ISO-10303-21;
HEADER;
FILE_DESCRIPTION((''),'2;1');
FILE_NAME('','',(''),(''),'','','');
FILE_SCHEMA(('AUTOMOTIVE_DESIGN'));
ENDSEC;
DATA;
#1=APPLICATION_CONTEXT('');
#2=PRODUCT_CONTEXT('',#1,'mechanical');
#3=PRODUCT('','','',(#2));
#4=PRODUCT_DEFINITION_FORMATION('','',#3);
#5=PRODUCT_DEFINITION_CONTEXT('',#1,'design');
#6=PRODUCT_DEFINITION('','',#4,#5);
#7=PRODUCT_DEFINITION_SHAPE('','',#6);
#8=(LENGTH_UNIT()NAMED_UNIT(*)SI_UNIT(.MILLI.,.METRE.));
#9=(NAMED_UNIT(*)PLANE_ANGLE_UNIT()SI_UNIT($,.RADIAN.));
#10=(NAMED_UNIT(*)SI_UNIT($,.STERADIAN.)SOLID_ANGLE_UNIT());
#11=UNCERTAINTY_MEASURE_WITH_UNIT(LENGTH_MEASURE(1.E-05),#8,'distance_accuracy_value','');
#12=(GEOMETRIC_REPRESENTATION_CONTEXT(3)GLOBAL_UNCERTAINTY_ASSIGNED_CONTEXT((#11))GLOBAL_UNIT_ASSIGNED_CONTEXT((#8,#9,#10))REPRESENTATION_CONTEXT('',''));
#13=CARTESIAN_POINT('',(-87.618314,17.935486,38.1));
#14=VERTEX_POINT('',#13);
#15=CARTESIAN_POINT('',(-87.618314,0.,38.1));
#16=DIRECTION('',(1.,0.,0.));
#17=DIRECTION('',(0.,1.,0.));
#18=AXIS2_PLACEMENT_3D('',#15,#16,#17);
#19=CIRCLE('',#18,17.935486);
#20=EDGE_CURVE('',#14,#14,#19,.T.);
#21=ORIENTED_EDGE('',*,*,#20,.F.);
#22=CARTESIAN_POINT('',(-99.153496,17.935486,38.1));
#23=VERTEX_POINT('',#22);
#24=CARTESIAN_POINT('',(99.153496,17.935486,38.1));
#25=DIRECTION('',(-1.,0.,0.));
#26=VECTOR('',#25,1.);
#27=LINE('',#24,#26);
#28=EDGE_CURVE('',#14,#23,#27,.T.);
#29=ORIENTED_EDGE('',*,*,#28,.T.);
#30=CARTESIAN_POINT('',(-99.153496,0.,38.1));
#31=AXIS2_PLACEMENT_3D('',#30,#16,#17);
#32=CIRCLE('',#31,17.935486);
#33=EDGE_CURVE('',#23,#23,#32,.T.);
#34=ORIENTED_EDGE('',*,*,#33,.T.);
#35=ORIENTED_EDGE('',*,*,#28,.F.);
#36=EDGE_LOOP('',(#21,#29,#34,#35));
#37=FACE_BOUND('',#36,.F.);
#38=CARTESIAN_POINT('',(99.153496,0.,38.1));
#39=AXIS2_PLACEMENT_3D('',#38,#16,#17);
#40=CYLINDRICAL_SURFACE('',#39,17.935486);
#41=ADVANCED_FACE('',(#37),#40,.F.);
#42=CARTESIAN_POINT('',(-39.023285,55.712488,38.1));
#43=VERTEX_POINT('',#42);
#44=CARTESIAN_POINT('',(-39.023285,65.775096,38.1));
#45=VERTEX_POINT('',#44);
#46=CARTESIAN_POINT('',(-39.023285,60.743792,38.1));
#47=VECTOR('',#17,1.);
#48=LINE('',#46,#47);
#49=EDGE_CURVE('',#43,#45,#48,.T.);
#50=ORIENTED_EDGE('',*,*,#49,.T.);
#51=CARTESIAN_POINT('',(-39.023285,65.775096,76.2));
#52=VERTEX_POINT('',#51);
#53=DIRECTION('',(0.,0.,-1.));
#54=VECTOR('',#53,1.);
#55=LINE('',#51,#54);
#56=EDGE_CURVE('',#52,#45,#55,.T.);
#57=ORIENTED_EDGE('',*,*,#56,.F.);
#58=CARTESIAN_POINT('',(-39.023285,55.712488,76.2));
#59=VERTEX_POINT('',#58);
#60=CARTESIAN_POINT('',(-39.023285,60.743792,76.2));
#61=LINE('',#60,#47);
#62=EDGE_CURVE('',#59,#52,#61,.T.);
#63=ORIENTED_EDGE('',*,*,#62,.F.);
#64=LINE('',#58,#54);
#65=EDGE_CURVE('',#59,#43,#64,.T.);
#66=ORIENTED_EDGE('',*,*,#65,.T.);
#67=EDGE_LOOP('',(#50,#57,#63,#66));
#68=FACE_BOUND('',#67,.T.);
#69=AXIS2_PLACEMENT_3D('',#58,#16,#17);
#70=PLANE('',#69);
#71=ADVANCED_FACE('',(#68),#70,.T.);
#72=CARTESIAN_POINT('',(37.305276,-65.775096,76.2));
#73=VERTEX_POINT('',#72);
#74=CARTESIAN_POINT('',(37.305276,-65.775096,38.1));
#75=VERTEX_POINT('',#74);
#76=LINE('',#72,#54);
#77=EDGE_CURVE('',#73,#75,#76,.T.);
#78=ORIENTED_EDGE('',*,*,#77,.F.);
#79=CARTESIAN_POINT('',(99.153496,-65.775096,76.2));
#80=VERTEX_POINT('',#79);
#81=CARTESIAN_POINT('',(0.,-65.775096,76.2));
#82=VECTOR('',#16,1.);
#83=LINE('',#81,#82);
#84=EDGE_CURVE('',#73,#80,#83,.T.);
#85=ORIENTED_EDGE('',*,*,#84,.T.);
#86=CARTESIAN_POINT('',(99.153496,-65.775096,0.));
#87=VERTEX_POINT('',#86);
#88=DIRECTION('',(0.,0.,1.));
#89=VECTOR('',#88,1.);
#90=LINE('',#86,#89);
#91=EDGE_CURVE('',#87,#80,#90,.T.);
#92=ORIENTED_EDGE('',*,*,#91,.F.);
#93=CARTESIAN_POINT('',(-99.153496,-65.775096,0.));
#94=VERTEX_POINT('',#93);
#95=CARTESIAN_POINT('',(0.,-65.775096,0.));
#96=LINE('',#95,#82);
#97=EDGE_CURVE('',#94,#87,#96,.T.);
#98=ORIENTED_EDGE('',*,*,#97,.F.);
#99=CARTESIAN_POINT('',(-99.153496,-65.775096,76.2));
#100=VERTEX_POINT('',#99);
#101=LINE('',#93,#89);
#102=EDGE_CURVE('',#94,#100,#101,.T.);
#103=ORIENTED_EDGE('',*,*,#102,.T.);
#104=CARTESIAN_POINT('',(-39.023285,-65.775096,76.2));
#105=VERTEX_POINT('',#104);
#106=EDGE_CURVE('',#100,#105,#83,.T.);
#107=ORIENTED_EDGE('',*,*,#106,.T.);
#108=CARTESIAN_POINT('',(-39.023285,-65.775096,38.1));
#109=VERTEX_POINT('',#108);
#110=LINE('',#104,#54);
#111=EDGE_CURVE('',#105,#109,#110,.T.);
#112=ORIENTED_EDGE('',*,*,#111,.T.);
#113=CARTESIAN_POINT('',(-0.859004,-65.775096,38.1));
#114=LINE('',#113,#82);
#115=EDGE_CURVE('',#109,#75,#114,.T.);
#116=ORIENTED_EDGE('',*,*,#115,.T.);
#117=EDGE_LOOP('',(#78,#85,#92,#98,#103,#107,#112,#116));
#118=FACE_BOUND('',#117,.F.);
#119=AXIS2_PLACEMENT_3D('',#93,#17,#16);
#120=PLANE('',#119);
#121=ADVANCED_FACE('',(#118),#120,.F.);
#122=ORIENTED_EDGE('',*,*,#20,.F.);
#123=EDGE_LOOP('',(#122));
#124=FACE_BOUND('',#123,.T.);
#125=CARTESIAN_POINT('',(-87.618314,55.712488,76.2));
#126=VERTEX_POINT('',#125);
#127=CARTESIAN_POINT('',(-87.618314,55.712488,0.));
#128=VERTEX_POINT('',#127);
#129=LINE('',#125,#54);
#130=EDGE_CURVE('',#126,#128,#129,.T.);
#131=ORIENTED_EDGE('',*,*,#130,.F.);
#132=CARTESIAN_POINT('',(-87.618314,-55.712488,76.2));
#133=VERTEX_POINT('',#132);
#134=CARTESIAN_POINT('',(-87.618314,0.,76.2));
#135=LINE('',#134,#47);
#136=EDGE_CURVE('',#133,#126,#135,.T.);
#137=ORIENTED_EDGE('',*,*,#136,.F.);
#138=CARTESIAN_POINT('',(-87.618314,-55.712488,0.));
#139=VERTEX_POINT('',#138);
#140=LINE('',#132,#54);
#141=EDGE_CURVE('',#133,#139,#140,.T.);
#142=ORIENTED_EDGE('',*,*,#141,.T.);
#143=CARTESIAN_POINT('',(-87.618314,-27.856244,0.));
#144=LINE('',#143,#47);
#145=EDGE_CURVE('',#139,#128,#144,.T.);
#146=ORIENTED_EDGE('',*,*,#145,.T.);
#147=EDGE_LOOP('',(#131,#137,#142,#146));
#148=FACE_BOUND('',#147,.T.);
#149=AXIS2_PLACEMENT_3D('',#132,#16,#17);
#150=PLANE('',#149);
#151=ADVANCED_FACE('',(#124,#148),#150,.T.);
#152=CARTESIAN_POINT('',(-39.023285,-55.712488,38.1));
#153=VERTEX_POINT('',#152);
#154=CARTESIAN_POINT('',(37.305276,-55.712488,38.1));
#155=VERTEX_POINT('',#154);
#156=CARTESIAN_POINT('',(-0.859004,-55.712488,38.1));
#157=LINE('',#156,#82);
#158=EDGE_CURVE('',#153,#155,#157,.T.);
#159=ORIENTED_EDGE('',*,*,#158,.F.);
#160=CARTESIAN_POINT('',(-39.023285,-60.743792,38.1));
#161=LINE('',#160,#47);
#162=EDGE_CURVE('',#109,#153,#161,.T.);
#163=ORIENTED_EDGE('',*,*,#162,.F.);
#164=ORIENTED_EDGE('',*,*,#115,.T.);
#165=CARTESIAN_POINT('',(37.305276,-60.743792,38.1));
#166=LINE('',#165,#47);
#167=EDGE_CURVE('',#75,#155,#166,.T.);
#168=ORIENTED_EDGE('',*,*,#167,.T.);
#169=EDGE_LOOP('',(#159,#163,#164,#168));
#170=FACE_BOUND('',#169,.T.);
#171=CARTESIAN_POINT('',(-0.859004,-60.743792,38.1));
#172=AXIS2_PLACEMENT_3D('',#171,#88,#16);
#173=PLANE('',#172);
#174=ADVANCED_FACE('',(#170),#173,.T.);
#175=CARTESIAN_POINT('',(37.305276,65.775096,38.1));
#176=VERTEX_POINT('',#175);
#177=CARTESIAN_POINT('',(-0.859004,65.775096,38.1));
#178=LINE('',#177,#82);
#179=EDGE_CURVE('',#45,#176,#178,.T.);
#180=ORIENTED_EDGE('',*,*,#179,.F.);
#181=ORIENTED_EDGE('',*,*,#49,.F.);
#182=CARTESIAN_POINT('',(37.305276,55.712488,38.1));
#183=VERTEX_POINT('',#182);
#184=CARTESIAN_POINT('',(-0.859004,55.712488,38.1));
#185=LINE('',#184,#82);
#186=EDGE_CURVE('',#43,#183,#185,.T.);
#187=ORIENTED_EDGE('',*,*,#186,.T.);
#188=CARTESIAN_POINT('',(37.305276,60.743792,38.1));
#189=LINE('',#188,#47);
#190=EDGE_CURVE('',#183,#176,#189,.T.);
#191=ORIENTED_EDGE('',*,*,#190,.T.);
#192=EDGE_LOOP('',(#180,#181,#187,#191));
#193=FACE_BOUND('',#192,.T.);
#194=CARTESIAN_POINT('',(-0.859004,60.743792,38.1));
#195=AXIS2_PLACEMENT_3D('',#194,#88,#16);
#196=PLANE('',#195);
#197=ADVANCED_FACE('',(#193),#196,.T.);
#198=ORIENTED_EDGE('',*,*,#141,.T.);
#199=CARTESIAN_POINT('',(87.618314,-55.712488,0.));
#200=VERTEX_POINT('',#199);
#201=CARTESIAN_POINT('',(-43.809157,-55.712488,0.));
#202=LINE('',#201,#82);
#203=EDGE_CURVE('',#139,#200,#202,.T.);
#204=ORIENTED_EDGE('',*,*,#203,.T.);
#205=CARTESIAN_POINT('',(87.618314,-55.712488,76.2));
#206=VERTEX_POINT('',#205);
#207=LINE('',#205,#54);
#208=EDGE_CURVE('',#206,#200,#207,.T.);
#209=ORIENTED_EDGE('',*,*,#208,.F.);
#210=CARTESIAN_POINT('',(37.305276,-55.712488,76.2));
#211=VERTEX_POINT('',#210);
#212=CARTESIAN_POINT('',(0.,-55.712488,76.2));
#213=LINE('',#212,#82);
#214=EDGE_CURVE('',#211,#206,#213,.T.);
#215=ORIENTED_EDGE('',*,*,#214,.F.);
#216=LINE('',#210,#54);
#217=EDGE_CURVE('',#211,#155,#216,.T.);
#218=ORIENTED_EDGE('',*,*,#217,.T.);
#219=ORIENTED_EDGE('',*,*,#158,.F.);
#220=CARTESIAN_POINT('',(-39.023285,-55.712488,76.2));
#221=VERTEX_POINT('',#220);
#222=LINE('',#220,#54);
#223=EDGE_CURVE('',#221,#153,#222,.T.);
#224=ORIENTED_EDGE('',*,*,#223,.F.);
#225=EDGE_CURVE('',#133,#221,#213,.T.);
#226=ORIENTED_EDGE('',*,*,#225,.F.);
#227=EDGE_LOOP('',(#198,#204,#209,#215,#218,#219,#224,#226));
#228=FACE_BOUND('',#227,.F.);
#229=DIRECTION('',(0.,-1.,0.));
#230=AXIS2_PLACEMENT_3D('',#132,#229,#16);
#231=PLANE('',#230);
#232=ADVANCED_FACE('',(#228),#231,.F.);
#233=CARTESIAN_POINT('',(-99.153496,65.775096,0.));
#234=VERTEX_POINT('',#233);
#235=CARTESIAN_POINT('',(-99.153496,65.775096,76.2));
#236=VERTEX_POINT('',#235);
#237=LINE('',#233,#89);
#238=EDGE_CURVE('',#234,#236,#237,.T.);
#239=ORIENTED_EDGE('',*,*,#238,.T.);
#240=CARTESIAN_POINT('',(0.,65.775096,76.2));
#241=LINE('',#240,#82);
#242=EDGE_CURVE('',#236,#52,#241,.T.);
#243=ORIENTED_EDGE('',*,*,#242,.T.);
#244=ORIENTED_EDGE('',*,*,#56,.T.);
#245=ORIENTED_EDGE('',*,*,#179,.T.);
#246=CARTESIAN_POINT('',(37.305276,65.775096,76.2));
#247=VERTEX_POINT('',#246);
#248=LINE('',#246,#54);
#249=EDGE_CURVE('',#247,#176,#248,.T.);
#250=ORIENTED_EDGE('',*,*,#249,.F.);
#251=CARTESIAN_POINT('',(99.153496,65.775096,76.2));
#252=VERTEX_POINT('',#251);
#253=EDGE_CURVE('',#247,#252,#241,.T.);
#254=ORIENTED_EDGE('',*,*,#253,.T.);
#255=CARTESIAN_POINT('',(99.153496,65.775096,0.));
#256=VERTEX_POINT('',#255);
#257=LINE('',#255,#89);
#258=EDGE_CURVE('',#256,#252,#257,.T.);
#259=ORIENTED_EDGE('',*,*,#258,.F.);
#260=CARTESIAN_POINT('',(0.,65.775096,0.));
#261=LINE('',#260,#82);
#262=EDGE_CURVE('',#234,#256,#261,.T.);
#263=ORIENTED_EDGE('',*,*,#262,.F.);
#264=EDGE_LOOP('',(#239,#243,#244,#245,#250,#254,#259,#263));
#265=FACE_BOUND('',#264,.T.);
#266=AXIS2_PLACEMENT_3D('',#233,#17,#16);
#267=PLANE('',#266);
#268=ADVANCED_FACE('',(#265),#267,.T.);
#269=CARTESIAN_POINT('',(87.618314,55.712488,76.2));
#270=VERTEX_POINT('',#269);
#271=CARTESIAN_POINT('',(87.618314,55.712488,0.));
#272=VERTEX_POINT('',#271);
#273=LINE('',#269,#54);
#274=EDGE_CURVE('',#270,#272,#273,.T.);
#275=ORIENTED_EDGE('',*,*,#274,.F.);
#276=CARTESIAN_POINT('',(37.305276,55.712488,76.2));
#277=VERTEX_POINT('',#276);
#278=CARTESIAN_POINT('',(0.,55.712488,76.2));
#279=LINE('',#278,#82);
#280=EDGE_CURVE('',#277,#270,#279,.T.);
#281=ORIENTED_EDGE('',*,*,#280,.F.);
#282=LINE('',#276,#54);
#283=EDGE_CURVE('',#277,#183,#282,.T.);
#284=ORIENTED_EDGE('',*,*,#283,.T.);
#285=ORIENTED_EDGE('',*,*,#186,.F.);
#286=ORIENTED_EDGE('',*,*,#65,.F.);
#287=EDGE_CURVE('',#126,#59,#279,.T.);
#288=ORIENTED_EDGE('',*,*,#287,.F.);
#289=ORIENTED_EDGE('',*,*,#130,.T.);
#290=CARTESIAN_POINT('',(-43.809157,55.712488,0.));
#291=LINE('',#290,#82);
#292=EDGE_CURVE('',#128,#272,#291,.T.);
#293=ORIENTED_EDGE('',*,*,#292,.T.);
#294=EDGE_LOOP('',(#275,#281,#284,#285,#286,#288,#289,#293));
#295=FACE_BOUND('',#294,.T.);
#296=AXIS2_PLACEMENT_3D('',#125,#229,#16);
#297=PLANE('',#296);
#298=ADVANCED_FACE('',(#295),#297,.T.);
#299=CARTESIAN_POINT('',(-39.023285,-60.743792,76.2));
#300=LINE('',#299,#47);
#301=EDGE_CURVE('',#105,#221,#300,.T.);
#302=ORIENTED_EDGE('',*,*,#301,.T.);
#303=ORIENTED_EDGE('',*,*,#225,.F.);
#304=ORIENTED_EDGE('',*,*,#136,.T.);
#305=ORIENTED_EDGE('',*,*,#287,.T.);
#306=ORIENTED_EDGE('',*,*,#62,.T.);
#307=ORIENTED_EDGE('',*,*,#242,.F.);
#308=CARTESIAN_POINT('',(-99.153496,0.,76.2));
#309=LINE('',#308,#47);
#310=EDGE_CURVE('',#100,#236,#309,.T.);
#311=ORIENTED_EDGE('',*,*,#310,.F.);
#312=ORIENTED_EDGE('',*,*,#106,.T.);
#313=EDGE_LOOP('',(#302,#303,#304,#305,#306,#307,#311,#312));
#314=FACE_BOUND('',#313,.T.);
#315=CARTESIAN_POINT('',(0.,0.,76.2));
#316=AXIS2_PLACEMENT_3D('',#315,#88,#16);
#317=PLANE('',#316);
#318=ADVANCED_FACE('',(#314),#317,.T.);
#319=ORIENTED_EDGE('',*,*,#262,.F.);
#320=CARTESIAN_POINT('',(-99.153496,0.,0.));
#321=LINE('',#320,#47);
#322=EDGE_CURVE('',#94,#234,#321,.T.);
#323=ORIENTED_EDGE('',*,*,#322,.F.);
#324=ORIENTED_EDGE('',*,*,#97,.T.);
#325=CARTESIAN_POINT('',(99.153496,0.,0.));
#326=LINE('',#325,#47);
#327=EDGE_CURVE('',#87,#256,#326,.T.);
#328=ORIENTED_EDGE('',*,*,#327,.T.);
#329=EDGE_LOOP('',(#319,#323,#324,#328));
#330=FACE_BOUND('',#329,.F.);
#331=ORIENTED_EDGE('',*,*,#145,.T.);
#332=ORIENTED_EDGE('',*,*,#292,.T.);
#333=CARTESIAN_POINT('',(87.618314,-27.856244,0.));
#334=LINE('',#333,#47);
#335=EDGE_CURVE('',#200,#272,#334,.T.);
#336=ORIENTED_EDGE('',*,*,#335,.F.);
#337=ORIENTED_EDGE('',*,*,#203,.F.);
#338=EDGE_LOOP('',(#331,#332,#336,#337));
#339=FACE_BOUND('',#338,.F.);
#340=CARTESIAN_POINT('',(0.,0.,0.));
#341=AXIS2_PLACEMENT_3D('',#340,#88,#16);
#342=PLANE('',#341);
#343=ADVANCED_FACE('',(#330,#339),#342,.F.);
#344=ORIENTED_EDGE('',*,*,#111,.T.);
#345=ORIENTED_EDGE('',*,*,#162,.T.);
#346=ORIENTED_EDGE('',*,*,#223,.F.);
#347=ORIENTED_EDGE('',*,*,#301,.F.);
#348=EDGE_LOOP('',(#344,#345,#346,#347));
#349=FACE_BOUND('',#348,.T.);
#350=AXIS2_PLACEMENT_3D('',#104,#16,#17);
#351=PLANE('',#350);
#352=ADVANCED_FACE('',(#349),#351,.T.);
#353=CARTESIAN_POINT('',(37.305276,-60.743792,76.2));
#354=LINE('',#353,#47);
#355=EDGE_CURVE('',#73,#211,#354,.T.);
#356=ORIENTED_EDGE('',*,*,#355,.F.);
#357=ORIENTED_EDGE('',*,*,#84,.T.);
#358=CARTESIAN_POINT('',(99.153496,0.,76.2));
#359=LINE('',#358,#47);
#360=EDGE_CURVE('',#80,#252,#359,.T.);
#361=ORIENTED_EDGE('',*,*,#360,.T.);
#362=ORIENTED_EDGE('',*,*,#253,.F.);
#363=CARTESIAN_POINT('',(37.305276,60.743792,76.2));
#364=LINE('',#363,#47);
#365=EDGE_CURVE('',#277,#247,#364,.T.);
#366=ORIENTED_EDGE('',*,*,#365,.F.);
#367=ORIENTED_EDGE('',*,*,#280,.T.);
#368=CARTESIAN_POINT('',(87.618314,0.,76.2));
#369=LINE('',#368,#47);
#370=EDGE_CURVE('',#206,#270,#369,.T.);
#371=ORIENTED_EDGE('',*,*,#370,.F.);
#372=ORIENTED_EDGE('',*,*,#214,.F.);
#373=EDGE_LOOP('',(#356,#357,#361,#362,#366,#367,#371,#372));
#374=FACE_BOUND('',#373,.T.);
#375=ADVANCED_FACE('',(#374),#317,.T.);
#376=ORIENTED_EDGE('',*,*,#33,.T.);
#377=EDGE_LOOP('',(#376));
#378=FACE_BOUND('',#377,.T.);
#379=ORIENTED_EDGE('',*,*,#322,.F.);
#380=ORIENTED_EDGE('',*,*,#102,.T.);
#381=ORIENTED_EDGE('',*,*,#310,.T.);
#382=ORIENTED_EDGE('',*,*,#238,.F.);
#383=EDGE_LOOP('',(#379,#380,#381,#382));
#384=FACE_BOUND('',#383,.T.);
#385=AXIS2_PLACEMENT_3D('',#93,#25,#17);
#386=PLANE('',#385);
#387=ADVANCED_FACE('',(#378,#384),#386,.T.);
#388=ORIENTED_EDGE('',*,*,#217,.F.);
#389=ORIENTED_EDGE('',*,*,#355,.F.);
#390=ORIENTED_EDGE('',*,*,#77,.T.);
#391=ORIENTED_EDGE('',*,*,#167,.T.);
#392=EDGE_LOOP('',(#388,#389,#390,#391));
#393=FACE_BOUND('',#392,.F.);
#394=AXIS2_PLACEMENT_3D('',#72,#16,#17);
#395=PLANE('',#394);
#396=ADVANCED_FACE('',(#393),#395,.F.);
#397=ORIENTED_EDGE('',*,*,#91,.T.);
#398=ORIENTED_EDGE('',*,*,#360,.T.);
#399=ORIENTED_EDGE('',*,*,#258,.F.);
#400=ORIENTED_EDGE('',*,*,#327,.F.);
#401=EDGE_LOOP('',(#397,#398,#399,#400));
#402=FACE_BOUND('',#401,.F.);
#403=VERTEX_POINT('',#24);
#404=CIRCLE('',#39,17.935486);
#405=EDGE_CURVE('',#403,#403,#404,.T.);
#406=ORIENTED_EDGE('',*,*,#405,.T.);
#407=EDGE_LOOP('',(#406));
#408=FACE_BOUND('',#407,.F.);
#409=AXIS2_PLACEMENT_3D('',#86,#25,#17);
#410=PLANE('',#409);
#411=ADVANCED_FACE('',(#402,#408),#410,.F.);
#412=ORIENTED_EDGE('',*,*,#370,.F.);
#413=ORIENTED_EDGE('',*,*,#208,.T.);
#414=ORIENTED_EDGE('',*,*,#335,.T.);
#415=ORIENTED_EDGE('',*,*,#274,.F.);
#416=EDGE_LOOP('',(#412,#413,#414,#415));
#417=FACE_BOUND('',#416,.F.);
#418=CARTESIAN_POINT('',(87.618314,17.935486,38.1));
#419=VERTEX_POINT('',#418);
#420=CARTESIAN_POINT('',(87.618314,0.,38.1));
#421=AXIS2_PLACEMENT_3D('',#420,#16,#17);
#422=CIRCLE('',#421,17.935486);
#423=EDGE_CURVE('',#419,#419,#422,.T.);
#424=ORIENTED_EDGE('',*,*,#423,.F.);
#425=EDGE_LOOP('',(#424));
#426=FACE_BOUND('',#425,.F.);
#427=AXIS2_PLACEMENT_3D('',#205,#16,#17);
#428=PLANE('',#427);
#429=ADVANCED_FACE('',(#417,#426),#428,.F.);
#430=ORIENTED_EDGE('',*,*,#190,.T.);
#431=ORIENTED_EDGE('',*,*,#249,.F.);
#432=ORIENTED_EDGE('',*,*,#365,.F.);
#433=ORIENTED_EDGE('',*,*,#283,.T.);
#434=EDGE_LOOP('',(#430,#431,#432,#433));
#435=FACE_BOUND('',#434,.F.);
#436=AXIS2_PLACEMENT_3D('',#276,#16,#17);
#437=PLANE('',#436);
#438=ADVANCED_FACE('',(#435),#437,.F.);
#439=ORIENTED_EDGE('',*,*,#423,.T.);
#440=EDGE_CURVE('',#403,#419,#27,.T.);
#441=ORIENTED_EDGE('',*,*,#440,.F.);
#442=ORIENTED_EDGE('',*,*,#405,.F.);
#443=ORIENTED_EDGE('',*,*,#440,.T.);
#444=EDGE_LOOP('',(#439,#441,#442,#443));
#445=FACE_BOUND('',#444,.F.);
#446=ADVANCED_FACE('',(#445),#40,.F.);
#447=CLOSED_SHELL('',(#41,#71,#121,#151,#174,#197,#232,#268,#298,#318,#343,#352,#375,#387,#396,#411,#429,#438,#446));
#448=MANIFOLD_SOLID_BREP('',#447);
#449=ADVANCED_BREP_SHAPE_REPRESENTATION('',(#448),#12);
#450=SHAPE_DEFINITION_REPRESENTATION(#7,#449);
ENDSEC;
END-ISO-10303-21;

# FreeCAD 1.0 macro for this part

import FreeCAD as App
import Part
import Sketcher
from FreeCAD import Vector
Q = App.Units.Quantity


def add_polygon(sketch, points):
    """Adds a closed chain of lines whose ends are joined by coincident constraints."""
    first, n = sketch.GeometryCount, len(points)
    for a, b in zip(points, points[1:] + points[:1]):
        sketch.addGeometry(Part.LineSegment(App.Vector(*a, 0), App.Vector(*b, 0)), False)
    for i in range(n):
        sketch.addConstraint(Sketcher.Constraint("Coincident", first + i, 2, first + (i + 1) % n, 1))

doc = App.newDocument("Part")
body = doc.addObject("PartDesign::Body", "Body")

# Sketch on XY plane
sketch1 = body.newObject("Sketcher::SketchObject", "Sketch")
sketch1.AttachmentSupport = (doc.getObject("XY_Plane"), [""])
sketch1.MapMode = "FlatFace"
add_polygon(sketch1, [(-99, 66), (-99, -66), (99, -66), (99, 66)])  # lines 0-3
sketch1.addConstraint([
    Sketcher.Constraint("Vertical", 0),
    Sketcher.Constraint("Horizontal", 1),
    Sketcher.Constraint("Vertical", 2),
    Sketcher.Constraint("Horizontal", 3),
    Sketcher.Constraint("Symmetric", 0, 2, 2, 2, -1, 1),
    Sketcher.Constraint("DistanceX", 1, 1, 1, 2, 198.306992),
    Sketcher.Constraint("DistanceY", 0, 2, 0, 1, 131.550192),
])
pad1 = body.newObject("PartDesign::Pad", "Pad")
pad1.Profile = sketch1
pad1.Length = Q("3 in")

# Sketch on XY plane
sketch2 = body.newObject("Sketcher::SketchObject", "Sketch001")
sketch2.AttachmentSupport = (doc.getObject("XY_Plane"), [""])
sketch2.MapMode = "FlatFace"
sketch2.AttachmentOffset = App.Placement(Vector(0, 0, 3 * 25.4), App.Rotation())
add_polygon(sketch2, [(-88, 56), (-88, -56), (88, -56), (88, 56)])  # lines 0-3
sketch2.addConstraint([
    Sketcher.Constraint("Vertical", 0),
    Sketcher.Constraint("Horizontal", 1),
    Sketcher.Constraint("Vertical", 2),
    Sketcher.Constraint("Horizontal", 3),
    Sketcher.Constraint("Symmetric", 0, 2, 2, 2, -1, 1),
    Sketcher.Constraint("DistanceX", 1, 1, 1, 2, 175.236628),
    Sketcher.Constraint("DistanceY", 0, 2, 0, 1, 111.424976),
])
pocket1 = body.newObject("PartDesign::Pocket", "Pocket")
pocket1.Profile = sketch2
pocket1.Type = "ThroughAll"

# Sketch on YZ plane
sketch3 = body.newObject("Sketcher::SketchObject", "Sketch002")
sketch3.AttachmentSupport = (doc.getObject("YZ_Plane"), [""])
sketch3.MapMode = "FlatFace"
sketch3.AttachmentOffset = App.Placement(Vector(0, 0, 99.153496), App.Rotation())
sketch3.addGeometry(Part.Circle(Vector(0, 38, 0), Vector(0, 0, 1), 18), False)
sketch3.addConstraint([
    Sketcher.Constraint("PointOnObject", 0, 3, -2),
    Sketcher.Constraint("DistanceY", -1, 1, 0, 3, Q("1.5 in")),
    Sketcher.Constraint("Diameter", 0, 35.870972),
])
pocket2 = body.newObject("PartDesign::Pocket", "Pocket001")
pocket2.Profile = sketch3
pocket2.Type = "ThroughAll"

# Sketch on XY plane
sketch4 = body.newObject("Sketcher::SketchObject", "Sketch003")
sketch4.AttachmentSupport = (doc.getObject("XY_Plane"), [""])
sketch4.MapMode = "FlatFace"
sketch4.AttachmentOffset = App.Placement(Vector(0, 0, 3 * 25.4), App.Rotation())
add_polygon(sketch4, [(-39, 66), (-39, 56), (37, 56), (37, 66)])  # lines 0-3
add_polygon(sketch4, [(-39, -56), (-39, -66), (37, -66), (37, -56)])  # lines 4-7
sketch4.addConstraint([
    Sketcher.Constraint("Vertical", 0),
    Sketcher.Constraint("Horizontal", 1),
    Sketcher.Constraint("Vertical", 2),
    Sketcher.Constraint("Horizontal", 3),
    Sketcher.Constraint("Vertical", 4),
    Sketcher.Constraint("Horizontal", 5),
    Sketcher.Constraint("Vertical", 6),
    Sketcher.Constraint("Horizontal", 7),
    Sketcher.Constraint("Symmetric", 3, 2, 4, 2, -1),
    Sketcher.Constraint("Symmetric", 1, 2, 6, 2, -1),
    Sketcher.Constraint("DistanceX", 1, 1, 1, 2, 76.328561),
    Sketcher.Constraint("DistanceY", 0, 2, 0, 1, 10.062608),
    Sketcher.Constraint("DistanceX", 0, 2, -1, 1, 39.023285),
    Sketcher.Constraint("DistanceY", -1, 1, 0, 2, 55.712488),
])
pocket3 = body.newObject("PartDesign::Pocket", "Pocket002")
pocket3.Profile = sketch4
pocket3.Length = Q("1.5 in")

doc.recompute()
